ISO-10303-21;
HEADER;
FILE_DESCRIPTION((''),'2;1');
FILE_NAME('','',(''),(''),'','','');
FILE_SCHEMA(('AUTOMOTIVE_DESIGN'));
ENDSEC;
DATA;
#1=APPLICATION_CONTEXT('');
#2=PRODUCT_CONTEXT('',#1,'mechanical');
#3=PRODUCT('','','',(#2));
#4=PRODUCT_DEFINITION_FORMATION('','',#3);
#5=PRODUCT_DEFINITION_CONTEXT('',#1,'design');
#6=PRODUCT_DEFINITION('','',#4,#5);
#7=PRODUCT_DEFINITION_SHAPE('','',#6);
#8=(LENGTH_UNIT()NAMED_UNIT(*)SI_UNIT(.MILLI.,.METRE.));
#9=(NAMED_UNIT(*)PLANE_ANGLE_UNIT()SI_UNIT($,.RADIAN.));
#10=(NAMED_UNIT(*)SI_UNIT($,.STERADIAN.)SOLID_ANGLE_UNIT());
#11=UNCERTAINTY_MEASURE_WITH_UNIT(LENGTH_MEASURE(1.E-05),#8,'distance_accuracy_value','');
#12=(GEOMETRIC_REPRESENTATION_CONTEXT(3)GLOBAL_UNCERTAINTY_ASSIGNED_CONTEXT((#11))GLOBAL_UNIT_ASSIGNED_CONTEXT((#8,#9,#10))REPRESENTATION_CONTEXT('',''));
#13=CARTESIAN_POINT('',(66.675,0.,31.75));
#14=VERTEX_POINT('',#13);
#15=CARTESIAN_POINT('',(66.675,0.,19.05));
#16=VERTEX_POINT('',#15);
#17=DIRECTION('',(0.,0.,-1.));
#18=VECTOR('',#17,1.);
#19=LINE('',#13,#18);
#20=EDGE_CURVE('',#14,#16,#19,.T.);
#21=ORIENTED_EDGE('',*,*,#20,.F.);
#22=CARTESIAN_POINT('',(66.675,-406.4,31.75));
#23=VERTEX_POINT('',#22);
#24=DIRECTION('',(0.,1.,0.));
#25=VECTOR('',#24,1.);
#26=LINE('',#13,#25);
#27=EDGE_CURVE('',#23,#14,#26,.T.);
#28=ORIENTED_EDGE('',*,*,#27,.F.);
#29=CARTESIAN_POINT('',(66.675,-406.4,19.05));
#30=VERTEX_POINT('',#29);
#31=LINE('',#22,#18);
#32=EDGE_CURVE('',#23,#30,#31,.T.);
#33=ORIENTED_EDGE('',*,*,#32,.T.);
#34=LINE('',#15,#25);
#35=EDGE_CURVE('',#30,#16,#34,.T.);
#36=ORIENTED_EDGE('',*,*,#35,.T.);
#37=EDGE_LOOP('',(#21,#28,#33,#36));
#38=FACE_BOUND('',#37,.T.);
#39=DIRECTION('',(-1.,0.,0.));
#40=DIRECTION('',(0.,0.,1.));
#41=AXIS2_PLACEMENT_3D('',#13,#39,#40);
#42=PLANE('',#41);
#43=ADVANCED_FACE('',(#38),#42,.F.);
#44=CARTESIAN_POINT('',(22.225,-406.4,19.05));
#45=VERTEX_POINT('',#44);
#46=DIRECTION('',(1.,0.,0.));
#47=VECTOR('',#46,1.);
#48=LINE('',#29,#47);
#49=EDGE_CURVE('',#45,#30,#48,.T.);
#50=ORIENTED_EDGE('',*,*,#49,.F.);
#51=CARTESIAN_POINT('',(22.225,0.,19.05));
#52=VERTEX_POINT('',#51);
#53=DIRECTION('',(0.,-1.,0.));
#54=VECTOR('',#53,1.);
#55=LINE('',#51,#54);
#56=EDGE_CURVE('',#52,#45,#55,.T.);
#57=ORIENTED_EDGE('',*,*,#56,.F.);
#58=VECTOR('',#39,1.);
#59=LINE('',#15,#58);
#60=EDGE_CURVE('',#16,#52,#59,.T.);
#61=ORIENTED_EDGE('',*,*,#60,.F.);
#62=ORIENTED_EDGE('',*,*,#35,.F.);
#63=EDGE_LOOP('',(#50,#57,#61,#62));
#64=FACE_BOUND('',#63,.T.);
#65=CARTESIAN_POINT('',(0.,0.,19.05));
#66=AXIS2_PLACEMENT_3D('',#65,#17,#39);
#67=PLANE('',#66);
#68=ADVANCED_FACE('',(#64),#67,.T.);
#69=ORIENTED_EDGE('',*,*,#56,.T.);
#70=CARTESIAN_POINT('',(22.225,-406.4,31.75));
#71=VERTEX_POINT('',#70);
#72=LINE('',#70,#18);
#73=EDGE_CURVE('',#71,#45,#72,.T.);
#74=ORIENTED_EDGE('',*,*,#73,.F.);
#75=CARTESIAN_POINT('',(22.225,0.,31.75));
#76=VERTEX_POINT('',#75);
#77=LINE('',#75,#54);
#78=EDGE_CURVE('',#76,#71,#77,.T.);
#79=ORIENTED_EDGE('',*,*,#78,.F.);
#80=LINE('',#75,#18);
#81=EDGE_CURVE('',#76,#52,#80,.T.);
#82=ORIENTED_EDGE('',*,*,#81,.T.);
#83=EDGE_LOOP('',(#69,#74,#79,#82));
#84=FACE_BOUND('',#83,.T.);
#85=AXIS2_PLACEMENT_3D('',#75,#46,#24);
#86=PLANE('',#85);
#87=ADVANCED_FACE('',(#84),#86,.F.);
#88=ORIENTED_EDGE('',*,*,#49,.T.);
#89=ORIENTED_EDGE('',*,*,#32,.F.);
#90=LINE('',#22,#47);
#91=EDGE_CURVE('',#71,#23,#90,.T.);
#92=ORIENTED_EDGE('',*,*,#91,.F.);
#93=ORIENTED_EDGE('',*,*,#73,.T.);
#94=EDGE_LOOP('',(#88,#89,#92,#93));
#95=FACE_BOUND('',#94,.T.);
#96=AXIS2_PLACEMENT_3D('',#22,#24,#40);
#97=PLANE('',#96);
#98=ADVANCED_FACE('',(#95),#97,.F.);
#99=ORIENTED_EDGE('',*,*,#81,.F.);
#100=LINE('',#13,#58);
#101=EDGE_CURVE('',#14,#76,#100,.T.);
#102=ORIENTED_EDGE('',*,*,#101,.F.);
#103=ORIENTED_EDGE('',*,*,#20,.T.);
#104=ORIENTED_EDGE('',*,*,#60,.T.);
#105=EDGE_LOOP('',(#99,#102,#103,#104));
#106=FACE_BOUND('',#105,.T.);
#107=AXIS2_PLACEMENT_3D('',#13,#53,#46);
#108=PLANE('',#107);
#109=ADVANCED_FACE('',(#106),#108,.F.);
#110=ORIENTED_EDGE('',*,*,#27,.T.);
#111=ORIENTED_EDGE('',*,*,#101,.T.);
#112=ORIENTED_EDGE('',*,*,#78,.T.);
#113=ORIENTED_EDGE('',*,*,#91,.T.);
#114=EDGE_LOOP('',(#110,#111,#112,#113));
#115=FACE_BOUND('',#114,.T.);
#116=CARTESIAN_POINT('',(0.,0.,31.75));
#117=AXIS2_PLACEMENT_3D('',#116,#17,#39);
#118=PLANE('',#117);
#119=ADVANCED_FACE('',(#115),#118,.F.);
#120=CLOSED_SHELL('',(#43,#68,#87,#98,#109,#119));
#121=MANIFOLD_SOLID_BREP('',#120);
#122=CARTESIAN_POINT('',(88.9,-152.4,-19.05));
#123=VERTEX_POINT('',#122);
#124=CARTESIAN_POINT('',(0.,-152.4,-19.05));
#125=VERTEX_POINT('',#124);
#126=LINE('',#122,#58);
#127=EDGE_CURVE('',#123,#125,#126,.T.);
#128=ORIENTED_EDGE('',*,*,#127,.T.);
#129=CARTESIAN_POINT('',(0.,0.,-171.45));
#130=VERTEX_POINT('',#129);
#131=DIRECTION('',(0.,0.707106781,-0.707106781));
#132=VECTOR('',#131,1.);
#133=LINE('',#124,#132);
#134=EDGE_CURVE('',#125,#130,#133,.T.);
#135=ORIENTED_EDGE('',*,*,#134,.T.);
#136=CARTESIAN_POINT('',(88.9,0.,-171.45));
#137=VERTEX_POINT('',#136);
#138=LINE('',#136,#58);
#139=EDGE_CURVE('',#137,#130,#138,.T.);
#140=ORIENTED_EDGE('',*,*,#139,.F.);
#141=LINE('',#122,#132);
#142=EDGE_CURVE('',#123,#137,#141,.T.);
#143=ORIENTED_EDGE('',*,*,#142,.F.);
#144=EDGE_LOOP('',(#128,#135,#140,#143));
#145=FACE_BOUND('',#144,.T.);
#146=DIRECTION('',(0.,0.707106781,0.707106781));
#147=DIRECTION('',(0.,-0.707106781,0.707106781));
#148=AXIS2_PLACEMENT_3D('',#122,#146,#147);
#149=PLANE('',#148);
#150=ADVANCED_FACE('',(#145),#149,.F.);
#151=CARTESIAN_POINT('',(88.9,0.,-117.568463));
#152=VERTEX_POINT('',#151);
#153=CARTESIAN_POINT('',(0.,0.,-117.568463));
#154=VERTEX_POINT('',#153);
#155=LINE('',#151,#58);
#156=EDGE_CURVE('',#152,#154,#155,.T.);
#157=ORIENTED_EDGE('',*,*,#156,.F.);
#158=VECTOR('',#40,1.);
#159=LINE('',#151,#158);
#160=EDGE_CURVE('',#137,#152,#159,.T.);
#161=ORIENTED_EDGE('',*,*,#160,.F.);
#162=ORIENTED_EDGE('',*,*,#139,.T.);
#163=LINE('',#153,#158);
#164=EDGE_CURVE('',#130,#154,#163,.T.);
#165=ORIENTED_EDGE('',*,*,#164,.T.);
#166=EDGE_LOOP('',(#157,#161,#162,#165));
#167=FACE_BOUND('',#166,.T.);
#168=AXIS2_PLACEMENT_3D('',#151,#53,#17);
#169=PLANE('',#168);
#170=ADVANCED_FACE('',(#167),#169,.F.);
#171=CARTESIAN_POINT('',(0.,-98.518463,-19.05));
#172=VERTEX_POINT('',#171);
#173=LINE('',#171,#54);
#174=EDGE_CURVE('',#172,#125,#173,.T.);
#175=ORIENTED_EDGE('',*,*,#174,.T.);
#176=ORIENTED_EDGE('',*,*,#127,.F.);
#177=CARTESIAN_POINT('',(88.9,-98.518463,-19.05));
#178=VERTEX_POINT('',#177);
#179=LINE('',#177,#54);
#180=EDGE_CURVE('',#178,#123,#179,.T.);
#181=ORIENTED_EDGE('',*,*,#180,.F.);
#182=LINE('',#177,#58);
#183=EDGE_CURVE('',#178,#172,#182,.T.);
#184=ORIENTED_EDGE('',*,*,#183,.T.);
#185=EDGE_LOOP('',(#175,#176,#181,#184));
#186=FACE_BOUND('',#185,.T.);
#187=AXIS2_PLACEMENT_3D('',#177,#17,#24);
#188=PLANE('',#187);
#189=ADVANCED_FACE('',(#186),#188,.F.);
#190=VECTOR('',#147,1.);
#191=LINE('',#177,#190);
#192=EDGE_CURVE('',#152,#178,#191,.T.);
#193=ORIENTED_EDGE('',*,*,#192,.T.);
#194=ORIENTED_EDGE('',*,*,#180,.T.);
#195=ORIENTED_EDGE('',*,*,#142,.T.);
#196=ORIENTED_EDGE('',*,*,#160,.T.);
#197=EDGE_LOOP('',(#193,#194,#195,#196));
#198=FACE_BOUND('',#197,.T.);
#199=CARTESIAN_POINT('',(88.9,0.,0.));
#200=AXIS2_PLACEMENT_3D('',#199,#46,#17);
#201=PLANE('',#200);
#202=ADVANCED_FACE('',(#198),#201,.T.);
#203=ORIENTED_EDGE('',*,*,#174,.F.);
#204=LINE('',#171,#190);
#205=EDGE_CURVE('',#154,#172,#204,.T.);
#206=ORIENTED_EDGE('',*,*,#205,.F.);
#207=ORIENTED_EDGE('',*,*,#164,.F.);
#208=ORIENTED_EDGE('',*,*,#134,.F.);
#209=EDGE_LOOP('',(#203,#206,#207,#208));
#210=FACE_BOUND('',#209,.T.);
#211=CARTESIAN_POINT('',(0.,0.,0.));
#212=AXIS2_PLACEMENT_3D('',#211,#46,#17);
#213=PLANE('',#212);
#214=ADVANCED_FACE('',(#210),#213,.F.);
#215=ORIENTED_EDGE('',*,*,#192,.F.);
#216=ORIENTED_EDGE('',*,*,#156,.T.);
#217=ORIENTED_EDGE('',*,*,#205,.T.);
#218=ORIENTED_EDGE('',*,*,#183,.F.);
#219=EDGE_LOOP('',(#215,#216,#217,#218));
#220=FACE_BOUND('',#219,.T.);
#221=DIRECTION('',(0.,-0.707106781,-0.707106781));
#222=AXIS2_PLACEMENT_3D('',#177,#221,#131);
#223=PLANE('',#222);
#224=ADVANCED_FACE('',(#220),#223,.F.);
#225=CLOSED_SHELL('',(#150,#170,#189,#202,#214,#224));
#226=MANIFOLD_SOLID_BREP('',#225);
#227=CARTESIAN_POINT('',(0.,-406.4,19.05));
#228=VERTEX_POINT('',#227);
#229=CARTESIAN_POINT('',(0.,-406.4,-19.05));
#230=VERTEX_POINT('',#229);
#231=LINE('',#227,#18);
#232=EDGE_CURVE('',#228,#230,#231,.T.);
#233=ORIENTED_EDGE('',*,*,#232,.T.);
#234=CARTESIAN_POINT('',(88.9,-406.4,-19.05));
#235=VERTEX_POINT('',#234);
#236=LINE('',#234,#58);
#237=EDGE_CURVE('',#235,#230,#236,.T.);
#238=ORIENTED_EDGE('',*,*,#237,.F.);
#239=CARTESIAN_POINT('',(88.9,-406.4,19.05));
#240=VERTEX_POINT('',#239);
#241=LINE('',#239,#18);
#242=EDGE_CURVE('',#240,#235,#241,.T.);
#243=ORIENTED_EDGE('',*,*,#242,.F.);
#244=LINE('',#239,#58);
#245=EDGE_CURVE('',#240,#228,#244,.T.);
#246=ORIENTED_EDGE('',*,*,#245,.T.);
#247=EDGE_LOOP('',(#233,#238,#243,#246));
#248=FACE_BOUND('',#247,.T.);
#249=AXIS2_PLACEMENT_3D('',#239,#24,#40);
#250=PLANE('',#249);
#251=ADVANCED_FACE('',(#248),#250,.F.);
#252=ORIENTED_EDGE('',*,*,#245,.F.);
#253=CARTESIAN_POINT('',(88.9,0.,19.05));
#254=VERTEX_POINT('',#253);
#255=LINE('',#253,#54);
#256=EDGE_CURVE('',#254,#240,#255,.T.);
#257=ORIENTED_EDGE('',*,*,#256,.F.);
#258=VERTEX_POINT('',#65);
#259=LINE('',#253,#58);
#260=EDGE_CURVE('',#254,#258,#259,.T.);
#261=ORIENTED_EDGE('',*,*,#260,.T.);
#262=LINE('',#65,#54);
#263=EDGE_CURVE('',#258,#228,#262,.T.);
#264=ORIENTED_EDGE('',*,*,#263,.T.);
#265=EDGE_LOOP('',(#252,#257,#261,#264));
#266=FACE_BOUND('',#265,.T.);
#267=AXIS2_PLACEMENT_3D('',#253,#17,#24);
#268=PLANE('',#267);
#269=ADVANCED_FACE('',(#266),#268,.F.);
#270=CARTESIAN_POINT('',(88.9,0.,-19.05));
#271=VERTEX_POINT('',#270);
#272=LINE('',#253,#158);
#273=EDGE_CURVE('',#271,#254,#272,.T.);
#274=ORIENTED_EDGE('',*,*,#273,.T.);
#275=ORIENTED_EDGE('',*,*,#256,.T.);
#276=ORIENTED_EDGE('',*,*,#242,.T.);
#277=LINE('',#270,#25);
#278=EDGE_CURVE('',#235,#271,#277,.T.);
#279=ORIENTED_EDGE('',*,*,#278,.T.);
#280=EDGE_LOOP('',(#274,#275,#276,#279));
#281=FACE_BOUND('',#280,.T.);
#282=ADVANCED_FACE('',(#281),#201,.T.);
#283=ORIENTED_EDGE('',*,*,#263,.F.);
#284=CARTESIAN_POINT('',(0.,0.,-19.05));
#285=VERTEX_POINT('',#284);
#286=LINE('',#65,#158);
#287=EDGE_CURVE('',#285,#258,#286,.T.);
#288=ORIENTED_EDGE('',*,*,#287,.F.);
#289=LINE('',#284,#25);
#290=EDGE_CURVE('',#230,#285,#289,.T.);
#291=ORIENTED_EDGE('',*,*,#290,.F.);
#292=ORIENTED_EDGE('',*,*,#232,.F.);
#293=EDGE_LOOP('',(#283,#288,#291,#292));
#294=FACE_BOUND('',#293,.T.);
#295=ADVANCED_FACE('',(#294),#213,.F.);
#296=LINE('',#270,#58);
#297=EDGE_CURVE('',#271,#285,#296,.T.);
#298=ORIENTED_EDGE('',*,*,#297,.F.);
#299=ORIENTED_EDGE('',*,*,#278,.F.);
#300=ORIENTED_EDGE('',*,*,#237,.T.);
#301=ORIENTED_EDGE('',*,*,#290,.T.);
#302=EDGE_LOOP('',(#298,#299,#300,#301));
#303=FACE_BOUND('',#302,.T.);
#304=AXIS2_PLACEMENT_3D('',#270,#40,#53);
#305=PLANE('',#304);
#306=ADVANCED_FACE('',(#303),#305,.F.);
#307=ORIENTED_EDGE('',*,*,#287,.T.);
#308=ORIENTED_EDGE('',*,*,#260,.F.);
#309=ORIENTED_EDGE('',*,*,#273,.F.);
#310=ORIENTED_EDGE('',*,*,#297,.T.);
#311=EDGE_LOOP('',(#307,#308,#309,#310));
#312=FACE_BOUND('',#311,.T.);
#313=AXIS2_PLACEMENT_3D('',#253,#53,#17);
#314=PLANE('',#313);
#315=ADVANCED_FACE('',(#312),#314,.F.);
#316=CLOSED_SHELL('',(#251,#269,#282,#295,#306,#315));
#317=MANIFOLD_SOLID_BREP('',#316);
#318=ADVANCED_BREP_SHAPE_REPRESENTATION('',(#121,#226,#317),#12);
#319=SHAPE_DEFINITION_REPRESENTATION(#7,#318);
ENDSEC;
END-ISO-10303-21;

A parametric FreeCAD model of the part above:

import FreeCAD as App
import Part
import Sketcher
Q = App.Units.Quantity


def add_polygon(sketch, points):
    """Adds a closed chain of lines whose ends are joined by coincident constraints."""
    first, n = sketch.GeometryCount, len(points)
    for a, b in zip(points, points[1:] + points[:1]):
        sketch.addGeometry(Part.LineSegment(App.Vector(*a, 0), App.Vector(*b, 0)), False)
    for i in range(n):
        sketch.addConstraint(Sketcher.Constraint("Coincident", first + i, 2, first + (i + 1) % n, 1))

doc = App.newDocument("Part")
params = doc.addObject("Spreadsheet::Sheet", "Params")
for row, (alias, value) in enumerate([
    ("sketch1_width", "16 in"),
    ("sketch1_height", "1.5 in"),
    ("pad1_length", "3.5 in"),
    ("pad2_length", "3.5 in"),
    ("sketch3_height", "16 in"),
    ("sketch3_width", "1.75 in"),
    ("pad3_length", "0.5 in"),
], start=1):
    params.set(f"A{row}", alias)
    params.set(f"B{row}", "=" + value)
    params.setAlias(f"B{row}", alias)

body = doc.addObject("PartDesign::Body", "Body")

sketch1 = body.newObject("Sketcher::SketchObject", "Sketch")
sketch1.AttachmentSupport = (doc.getObject("YZ_Plane"), [""])
sketch1.MapMode = "FlatFace"
add_polygon(sketch1, [(0, 19), (-406, 19), (-406, -19), (0, -19)])
sketch1.addConstraint([
    Sketcher.Constraint("Horizontal", 0),
    Sketcher.Constraint("Vertical", 1),
    Sketcher.Constraint("Horizontal", 2),
    Sketcher.Constraint("Vertical", 3),
    Sketcher.Constraint("Symmetric", 2, 2, 3, 2, -1, 1),
    Sketcher.Constraint("DistanceX", 0, 2, 0, 1, Q("16 in")),
    Sketcher.Constraint("DistanceY", 1, 2, 1, 1, Q("1.5 in")),
])
sketch1.setExpression("Constraints[9]", "Params.sketch1_width")
sketch1.setExpression("Constraints[10]", "Params.sketch1_height")
pad1 = body.newObject("PartDesign::Pad", "Pad")
pad1.Profile = sketch1
pad1.setExpression("Length", "Params.pad1_length")
body2 = doc.addObject("PartDesign::Body", "Body001")

sketch2 = body2.newObject("Sketcher::SketchObject", "Sketch001")
sketch2.AttachmentSupport = (doc.getObject("YZ_Plane001"), [""])
sketch2.MapMode = "FlatFace"
add_polygon(sketch2, [(-152, -19), (0, -171), (0, -118), (-99, -19)])
sketch2.addConstraint([
    Sketcher.Constraint("Vertical", 1),
    Sketcher.Constraint("Horizontal", 3),
    Sketcher.Constraint("PointOnObject", 0, 2, -2),
    Sketcher.Constraint("Parallel", 0, 2),
    Sketcher.Constraint("Equal", 3, 1),
    Sketcher.Constraint("DistanceX", 3, 2, -1, 1, Q("6 in")),
    Sketcher.Constraint("DistanceY", 0, 2, -1, 1, Q("6.75 in")),
    Sketcher.Constraint("DistanceX", 3, 2, 3, 1, Q("53.881537 mm")),
])
pad2 = body2.newObject("PartDesign::Pad", "Pad001")
pad2.Profile = sketch2
pad2.setExpression("Length", "Params.pad2_length")
body3 = doc.addObject("PartDesign::Body", "Body002")

sketch3 = body3.newObject("Sketcher::SketchObject", "Sketch002")
sketch3.AttachmentSupport = (doc.getObject("XY_Plane002"), [""])
sketch3.MapMode = "FlatFace"
sketch3.AttachmentOffset = App.Placement(App.Vector(0, 0, 0.75 * 25.4), App.Rotation())
add_polygon(sketch3, [(22, 0), (22, -406), (67, -406), (67, 0)])
sketch3.addConstraint([
    Sketcher.Constraint("Vertical", 0),
    Sketcher.Constraint("Horizontal", 1),
    Sketcher.Constraint("Vertical", 2),
    Sketcher.Constraint("Horizontal", 3),
    Sketcher.Constraint("PointOnObject", 2, 2, -1),
    Sketcher.Constraint("DistanceY", 0, 2, 0, 1, Q("16 in")),
    Sketcher.Constraint("DistanceX", 1, 1, 1, 2, Q("1.75 in")),
    Sketcher.Constraint("DistanceX", -1, 1, 0, 2, Q("0.875 in")),
])
sketch3.setExpression("Constraints[9]", "Params.sketch3_height")
sketch3.setExpression("Constraints[10]", "Params.sketch3_width")
pad3 = body3.newObject("PartDesign::Pad", "Pad002")
pad3.Profile = sketch3
pad3.setExpression("Length", "Params.pad3_length")

doc.recompute()
